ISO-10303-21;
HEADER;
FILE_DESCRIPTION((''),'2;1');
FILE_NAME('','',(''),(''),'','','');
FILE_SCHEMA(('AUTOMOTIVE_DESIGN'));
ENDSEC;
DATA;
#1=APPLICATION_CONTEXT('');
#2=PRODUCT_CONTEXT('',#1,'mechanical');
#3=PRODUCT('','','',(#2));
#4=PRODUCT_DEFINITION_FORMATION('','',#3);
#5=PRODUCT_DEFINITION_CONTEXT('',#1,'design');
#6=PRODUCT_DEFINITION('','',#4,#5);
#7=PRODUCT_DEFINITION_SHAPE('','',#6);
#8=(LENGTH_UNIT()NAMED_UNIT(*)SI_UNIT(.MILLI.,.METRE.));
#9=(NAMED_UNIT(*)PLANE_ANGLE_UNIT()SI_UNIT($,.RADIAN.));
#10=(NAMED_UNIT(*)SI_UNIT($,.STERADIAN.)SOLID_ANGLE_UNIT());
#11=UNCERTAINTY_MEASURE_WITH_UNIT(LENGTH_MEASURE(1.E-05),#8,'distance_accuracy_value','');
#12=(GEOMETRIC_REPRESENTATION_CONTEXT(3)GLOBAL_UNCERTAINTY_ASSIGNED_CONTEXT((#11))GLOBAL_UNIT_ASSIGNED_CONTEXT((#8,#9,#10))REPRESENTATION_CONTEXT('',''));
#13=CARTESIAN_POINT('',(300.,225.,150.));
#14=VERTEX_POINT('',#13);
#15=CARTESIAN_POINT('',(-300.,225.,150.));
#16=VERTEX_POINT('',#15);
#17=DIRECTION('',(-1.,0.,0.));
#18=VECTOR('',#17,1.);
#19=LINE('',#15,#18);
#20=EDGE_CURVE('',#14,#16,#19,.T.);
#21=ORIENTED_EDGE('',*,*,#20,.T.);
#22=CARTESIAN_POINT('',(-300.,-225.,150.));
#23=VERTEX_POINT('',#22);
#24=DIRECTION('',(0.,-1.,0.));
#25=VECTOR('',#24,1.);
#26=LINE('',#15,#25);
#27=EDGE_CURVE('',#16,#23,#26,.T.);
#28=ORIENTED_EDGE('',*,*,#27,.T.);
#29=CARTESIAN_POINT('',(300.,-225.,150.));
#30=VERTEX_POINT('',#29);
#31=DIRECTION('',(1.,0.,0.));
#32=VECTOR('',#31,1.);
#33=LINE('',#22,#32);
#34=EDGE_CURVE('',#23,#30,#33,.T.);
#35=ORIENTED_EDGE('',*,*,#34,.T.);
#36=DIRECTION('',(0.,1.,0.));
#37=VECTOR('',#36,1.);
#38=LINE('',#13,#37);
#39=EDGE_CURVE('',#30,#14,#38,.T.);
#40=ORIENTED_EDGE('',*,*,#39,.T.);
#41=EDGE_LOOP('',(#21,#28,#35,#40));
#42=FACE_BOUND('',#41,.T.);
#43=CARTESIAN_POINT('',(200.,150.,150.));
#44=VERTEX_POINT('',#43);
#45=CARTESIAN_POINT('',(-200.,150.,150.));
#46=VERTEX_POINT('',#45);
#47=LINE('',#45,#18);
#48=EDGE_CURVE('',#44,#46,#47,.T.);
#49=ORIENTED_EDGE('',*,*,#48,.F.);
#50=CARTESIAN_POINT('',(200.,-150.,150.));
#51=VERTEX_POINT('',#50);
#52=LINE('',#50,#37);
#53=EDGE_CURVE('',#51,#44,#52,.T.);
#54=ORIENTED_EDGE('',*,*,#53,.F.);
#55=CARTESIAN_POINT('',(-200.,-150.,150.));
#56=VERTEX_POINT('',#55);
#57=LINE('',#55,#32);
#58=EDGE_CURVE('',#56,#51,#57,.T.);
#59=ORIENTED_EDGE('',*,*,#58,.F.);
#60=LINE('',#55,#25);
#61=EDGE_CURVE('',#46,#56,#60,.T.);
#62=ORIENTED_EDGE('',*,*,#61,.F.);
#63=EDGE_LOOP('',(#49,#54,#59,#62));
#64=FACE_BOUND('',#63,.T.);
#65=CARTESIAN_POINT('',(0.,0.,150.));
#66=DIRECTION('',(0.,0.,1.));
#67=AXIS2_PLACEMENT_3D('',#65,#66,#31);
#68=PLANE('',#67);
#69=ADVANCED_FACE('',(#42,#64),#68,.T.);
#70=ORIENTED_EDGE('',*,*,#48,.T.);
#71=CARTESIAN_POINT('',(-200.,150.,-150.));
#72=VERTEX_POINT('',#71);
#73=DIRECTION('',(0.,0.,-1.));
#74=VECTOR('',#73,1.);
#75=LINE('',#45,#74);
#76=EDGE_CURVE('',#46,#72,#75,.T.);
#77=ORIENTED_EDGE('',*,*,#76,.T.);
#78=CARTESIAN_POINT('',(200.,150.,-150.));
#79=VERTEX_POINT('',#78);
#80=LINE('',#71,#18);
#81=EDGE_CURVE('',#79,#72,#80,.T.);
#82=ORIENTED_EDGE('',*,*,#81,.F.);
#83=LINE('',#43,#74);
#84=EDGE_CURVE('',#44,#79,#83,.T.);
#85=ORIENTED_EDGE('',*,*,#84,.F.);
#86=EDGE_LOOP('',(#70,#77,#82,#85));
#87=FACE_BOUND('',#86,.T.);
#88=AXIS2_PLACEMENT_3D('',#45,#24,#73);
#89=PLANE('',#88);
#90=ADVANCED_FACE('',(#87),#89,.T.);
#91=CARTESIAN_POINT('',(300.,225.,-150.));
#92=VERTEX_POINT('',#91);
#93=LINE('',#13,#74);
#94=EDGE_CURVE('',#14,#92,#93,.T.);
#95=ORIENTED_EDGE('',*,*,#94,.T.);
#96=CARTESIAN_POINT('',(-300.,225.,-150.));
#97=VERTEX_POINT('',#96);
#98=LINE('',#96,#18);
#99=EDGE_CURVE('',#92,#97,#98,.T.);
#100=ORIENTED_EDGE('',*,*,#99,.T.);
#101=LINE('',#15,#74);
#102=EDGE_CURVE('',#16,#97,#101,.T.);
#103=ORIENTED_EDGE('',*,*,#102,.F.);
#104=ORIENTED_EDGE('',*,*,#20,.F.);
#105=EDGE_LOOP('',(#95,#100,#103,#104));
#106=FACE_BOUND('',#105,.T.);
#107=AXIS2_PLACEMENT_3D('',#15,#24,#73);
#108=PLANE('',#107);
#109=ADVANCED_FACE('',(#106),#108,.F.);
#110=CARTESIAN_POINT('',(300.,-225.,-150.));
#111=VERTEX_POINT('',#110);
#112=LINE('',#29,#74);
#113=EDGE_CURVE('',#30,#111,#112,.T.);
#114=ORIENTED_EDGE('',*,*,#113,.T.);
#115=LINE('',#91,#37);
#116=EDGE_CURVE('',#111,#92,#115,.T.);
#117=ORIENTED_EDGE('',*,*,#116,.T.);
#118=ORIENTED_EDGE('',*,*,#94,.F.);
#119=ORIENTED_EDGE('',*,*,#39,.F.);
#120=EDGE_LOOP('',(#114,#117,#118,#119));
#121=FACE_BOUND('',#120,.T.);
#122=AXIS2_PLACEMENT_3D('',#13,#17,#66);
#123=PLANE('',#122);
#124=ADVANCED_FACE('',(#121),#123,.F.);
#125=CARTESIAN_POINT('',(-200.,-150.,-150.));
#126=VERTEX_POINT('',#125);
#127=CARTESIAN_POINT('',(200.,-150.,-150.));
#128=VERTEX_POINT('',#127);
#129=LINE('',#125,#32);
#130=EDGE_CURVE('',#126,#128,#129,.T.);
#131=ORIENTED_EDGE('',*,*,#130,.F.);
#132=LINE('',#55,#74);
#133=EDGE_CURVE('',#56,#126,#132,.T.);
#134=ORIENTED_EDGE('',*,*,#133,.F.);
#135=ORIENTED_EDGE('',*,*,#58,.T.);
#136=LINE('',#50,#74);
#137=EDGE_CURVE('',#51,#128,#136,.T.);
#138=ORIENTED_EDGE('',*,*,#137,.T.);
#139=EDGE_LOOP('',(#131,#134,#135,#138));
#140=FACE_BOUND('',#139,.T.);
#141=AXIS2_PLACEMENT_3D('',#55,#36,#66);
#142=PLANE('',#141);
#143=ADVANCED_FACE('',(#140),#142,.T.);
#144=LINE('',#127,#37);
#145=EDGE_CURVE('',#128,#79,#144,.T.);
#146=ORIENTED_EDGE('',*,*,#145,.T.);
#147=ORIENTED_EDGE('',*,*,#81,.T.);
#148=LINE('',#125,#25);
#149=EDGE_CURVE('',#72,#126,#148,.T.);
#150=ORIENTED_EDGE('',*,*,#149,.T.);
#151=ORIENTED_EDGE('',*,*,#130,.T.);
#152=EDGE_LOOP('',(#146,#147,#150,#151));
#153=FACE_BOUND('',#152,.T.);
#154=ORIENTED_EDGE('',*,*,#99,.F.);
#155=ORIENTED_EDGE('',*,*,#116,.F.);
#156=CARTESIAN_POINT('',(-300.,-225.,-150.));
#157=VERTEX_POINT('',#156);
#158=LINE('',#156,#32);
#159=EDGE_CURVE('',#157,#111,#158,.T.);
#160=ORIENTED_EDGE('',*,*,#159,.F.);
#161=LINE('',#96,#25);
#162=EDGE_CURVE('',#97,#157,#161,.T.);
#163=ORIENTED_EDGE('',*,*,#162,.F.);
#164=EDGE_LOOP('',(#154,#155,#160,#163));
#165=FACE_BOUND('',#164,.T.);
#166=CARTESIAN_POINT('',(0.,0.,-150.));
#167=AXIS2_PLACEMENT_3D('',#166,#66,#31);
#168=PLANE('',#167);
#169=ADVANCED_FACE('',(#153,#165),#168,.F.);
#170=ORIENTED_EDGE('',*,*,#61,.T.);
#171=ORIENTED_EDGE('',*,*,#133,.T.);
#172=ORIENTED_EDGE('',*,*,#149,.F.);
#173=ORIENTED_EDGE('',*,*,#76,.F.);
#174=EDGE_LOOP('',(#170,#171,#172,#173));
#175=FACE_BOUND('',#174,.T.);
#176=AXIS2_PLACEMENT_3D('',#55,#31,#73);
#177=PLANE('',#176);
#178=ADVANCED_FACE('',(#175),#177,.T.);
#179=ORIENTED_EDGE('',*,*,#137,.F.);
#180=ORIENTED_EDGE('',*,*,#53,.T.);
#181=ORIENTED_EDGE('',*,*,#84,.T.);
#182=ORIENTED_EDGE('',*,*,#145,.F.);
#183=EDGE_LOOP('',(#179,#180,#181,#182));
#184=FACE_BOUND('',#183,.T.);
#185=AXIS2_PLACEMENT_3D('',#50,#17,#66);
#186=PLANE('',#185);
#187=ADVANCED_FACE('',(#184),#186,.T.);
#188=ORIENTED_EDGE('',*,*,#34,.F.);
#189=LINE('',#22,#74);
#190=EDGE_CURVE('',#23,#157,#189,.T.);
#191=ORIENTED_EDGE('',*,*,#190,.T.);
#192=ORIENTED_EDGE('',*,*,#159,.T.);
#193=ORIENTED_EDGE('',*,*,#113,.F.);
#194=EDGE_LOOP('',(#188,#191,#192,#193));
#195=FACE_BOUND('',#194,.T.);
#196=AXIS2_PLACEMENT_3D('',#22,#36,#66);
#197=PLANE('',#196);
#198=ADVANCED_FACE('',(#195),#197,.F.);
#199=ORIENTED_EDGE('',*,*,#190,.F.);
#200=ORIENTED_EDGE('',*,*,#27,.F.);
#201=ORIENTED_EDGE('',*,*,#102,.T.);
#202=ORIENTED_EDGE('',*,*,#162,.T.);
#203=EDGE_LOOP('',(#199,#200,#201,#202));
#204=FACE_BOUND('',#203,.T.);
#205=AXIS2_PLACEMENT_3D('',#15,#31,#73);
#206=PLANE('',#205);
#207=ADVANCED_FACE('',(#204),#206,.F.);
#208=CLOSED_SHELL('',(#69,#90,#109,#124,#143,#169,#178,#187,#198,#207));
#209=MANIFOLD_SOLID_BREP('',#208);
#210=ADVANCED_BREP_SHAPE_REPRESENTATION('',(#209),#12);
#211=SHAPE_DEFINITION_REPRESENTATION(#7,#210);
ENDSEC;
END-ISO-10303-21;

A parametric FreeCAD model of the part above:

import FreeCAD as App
import Part
import Sketcher
from FreeCAD import Vector
Q = App.Units.Quantity

doc = App.newDocument("Part")
body = doc.addObject("PartDesign::Body", "Body")

# Sketch on XY plane
sketch1 = doc.addObject("Sketcher::SketchObject", "Sketch")
body.addObject(sketch1)
sketch1.AttachmentSupport = (doc.XY_Plane, [""])
sketch1.MapMode = "FlatFace"
sketch1.addGeometry([
    Part.LineSegment(Vector(-300, 225, 0), Vector(-300, -225, 0)),  # 0
    Part.LineSegment(Vector(-300, -225, 0), Vector(300, -225, 0)),  # 1
    Part.LineSegment(Vector(300, -225, 0), Vector(300, 225, 0)),  # 2
    Part.LineSegment(Vector(300, 225, 0), Vector(-300, 225, 0)),  # 3
    Part.LineSegment(Vector(200, -150, 0), Vector(-200, -150, 0)),  # 4
    Part.LineSegment(Vector(-200, -150, 0), Vector(-200, 150, 0)),  # 5
    Part.LineSegment(Vector(-200, 150, 0), Vector(200, 150, 0)),  # 6
    Part.LineSegment(Vector(200, 150, 0), Vector(200, -150, 0)),  # 7
], False)
sketch1.addConstraint([
    Sketcher.Constraint("Coincident", 0, 2, 1, 1),
    Sketcher.Constraint("Coincident", 1, 2, 2, 1),
    Sketcher.Constraint("Coincident", 2, 2, 3, 1),
    Sketcher.Constraint("Coincident", 3, 2, 0, 1),
    Sketcher.Constraint("Coincident", 4, 2, 5, 1),
    Sketcher.Constraint("Coincident", 5, 2, 6, 1),
    Sketcher.Constraint("Coincident", 6, 2, 7, 1),
    Sketcher.Constraint("Coincident", 7, 2, 4, 1),
    Sketcher.Constraint("Vertical", 0),
    Sketcher.Constraint("Horizontal", 1),
    Sketcher.Constraint("Vertical", 2),
    Sketcher.Constraint("Horizontal", 3),
    Sketcher.Constraint("Horizontal", 4),
    Sketcher.Constraint("Vertical", 5),
    Sketcher.Constraint("Horizontal", 6),
    Sketcher.Constraint("Vertical", 7),
    Sketcher.Constraint("Symmetric", 0, 2, 2, 2, -1, 1),
    Sketcher.Constraint("Symmetric", 4, 2, 6, 2, -1, 1),
    Sketcher.Constraint("DistanceX", 1, 1, 1, 2, Q("600 mm")),
    Sketcher.Constraint("DistanceX", 4, 2, 4, 1, Q("400 mm")),
    Sketcher.Constraint("DistanceY", 0, 2, 0, 1, Q("450 mm")),
    Sketcher.Constraint("DistanceY", 5, 1, 5, 2, Q("300 mm")),
])
pad1 = doc.addObject("PartDesign::Pad", "Pad")
body.addObject(pad1)
pad1.Profile = sketch1
pad1.Length = 300
pad1.Midplane = True

doc.recompute()
